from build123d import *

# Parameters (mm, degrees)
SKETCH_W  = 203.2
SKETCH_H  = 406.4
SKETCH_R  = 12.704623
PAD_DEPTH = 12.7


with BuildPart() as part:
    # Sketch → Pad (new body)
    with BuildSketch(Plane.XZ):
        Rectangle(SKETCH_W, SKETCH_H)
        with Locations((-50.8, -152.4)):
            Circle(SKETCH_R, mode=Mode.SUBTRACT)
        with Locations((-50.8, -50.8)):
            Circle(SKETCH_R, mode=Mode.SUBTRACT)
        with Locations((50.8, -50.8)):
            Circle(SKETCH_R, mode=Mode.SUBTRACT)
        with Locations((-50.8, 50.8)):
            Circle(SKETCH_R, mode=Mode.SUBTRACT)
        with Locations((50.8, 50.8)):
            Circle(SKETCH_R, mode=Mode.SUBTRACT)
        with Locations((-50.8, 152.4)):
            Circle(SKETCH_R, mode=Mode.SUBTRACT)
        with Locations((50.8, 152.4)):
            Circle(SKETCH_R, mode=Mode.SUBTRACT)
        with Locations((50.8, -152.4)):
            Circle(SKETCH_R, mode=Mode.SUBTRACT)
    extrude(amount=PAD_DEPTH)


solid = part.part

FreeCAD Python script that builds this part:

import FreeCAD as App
import Part
import Sketcher
from FreeCAD import Vector
Q = App.Units.Quantity

doc = App.newDocument("Part")
body = doc.addObject("PartDesign::Body", "Body")

sketch1 = doc.addObject("Sketcher::SketchObject", "Sketch")
body.addObject(sketch1)
sketch1.AttachmentSupport = (doc.XZ_Plane, [""])
sketch1.MapMode = "FlatFace"
sketch1.addGeometry(Part.LineSegment(Vector(-102, 203, 0), Vector(-102, -203, 0)), False)
sketch1.addGeometry(Part.LineSegment(Vector(-102, -203, 0), Vector(102, -203, 0)), False)
sketch1.addGeometry(Part.LineSegment(Vector(102, -203, 0), Vector(102, 203, 0)), False)
sketch1.addGeometry(Part.LineSegment(Vector(102, 203, 0), Vector(-102, 203, 0)), False)
sketch1.addGeometry(Part.Circle(Vector(-51, -152, 0), Vector(0, 0, 1), 13), False)
sketch1.addGeometry(Part.Circle(Vector(-51, -51, 0), Vector(0, 0, 1), 13), False)
sketch1.addGeometry(Part.Circle(Vector(51, -152, 0), Vector(0, 0, 1), 13), False)
sketch1.addGeometry(Part.Circle(Vector(51, -51, 0), Vector(0, 0, 1), 13), False)
sketch1.addGeometry(Part.Circle(Vector(-51, 51, 0), Vector(0, 0, 1), 13), False)
sketch1.addGeometry(Part.Circle(Vector(-51, 152, 0), Vector(0, 0, 1), 13), False)
sketch1.addGeometry(Part.Circle(Vector(51, 51, 0), Vector(0, 0, 1), 13), False)
sketch1.addGeometry(Part.Circle(Vector(51, 152, 0), Vector(0, 0, 1), 13), False)
sketch1.addConstraint(Sketcher.Constraint("Coincident", 0, 2, 1, 1))
sketch1.addConstraint(Sketcher.Constraint("Coincident", 1, 2, 2, 1))
sketch1.addConstraint(Sketcher.Constraint("Coincident", 2, 2, 3, 1))
sketch1.addConstraint(Sketcher.Constraint("Coincident", 3, 2, 0, 1))
sketch1.addConstraint(Sketcher.Constraint("Vertical", 0))
sketch1.addConstraint(Sketcher.Constraint("Horizontal", 1))
sketch1.addConstraint(Sketcher.Constraint("Vertical", 2))
sketch1.addConstraint(Sketcher.Constraint("Horizontal", 3))
sketch1.addConstraint(Sketcher.Constraint("Equal", 4, 5))
sketch1.addConstraint(Sketcher.Constraint("Equal", 5, 6))
sketch1.addConstraint(Sketcher.Constraint("Equal", 6, 7))
sketch1.addConstraint(Sketcher.Constraint("Equal", 7, 8))
sketch1.addConstraint(Sketcher.Constraint("Equal", 8, 9))
sketch1.addConstraint(Sketcher.Constraint("Equal", 9, 10))
sketch1.addConstraint(Sketcher.Constraint("Equal", 10, 11))
sketch1.addConstraint(Sketcher.Constraint("Symmetric", 7, 3, 8, 3, -1, 1))
sketch1.addConstraint(Sketcher.Constraint("Symmetric", 6, 3, 9, 3, -1, 1))
sketch1.addConstraint(Sketcher.Constraint("Symmetric", 5, 3, 10, 3, -1, 1))
sketch1.addConstraint(Sketcher.Constraint("Symmetric", 4, 3, 11, 3, -1, 1))
sketch1.addConstraint(Sketcher.Constraint("Symmetric", 0, 2, 2, 2, -1, 1))
sketch1.addConstraint(Sketcher.Constraint("Symmetric", 4, 3, 6, 3, -2))
sketch1.addConstraint(Sketcher.Constraint("Symmetric", 5, 3, 7, 3, -2))
sketch1.addConstraint(Sketcher.Constraint("Vertical", 4, 3, 5, 3))
sketch1.addConstraint(Sketcher.Constraint("DistanceX", 1, 1, 1, 2, Q("8 in")))
sketch1.addConstraint(Sketcher.Constraint("DistanceY", 0, 2, 0, 1, Q("16 in")))
sketch1.addConstraint(Sketcher.Constraint("DistanceX", 4, 3, -1, 1, Q("2 in")))
sketch1.addConstraint(Sketcher.Constraint("DistanceY", 4, 3, -1, 1, Q("6 in")))
sketch1.addConstraint(Sketcher.Constraint("DistanceY", 5, 3, -1, 1, Q("2 in")))
sketch1.addConstraint(Sketcher.Constraint("Diameter", 4, Q("25.409246 mm")))
pad1 = doc.addObject("PartDesign::Pad", "Pad")
body.addObject(pad1)
pad1.Profile = sketch1
pad1.Length = Q("0.5 in")

doc.recompute()
